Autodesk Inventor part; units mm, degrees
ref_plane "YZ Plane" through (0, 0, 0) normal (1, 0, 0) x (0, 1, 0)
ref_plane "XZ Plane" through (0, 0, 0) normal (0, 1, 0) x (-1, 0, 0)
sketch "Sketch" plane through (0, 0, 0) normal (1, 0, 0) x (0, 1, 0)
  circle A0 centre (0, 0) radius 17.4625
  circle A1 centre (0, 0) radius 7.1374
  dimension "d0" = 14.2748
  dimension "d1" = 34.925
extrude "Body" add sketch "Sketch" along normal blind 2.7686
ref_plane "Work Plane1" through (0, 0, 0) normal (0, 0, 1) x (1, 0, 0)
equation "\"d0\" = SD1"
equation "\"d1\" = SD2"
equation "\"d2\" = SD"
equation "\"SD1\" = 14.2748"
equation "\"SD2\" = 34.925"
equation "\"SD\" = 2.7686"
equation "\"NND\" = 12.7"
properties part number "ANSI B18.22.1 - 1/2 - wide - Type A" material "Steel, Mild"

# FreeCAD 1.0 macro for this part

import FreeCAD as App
import Part
import Sketcher

V = App.Vector
Q = App.Units.Quantity

doc = App.newDocument("Part")
body = doc.addObject("PartDesign::Body", "Body")

# Sketch on YZ plane
sketch1 = body.newObject("Sketcher::SketchObject", "Sketch")
sketch1.AttachmentSupport = (doc.getObject("YZ_Plane"), [""])
sketch1.MapMode = "FlatFace"
sketch1.addGeometry(Part.Circle(V(0, 0, 0), V(0, 0, 1), 17.4625), False)
sketch1.addGeometry(Part.Circle(V(0, 0, 0), V(0, 0, 1), 7.1374), False)
sketch1.addConstraint(Sketcher.Constraint("Coincident", 0, 3, -1, 1))
sketch1.addConstraint(Sketcher.Constraint("Coincident", 1, 3, -1, 1))
sketch1.addConstraint(Sketcher.Constraint("Diameter", 0, Q("1.375 in")))
sketch1.addConstraint(Sketcher.Constraint("Diameter", 1, Q("0.562 in")))
pad1 = body.newObject("PartDesign::Pad", "Pad")
pad1.Profile = sketch1
pad1.Length = Q("0.109 in")

doc.recompute()
